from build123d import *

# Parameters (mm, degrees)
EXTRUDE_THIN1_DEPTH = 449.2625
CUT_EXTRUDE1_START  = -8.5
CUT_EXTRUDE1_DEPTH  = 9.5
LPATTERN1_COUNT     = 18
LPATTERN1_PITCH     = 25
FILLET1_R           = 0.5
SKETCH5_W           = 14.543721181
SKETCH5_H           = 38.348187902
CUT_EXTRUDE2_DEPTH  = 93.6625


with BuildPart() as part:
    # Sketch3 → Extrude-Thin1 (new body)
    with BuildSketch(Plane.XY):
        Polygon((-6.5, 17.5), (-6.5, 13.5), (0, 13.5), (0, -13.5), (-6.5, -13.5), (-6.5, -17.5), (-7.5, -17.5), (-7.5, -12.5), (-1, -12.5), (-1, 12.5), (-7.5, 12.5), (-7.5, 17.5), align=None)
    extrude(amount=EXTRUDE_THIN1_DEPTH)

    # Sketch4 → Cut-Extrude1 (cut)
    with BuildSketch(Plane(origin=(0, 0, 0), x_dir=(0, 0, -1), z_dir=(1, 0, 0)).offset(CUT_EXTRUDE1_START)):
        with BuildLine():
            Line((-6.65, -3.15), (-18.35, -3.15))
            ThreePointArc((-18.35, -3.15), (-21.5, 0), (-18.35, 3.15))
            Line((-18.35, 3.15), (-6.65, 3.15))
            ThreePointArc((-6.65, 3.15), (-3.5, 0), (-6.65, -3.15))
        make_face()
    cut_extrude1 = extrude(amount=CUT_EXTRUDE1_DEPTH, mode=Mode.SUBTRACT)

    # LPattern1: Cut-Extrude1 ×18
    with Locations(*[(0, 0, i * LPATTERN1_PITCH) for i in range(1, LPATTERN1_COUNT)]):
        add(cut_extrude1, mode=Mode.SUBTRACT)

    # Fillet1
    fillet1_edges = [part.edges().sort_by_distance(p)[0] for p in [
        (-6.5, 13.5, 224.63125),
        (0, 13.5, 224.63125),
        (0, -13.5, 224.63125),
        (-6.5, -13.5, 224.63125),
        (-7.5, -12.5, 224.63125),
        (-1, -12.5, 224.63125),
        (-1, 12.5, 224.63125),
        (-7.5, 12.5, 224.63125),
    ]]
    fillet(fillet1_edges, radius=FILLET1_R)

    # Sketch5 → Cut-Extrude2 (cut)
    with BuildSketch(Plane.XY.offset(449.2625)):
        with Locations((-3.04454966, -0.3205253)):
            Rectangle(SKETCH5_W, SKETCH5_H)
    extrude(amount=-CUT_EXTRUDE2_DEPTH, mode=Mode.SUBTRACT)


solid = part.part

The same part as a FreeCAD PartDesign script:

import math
import FreeCAD as App
import Part
import Sketcher

V = App.Vector


def edges_at(feature, points):
    """Names of the edges that pass closest to the given points."""
    edges = feature.Shape.Edges
    near = lambda p: min(range(len(edges)), key=lambda i: edges[i].distToShape(Part.Vertex(*p))[0])
    return sorted({f"Edge{near(p) + 1}" for p in points})

doc = App.newDocument("Part")
params = doc.addObject("Spreadsheet::Sheet", "Params")
for row, (alias, value) in enumerate([
    ("sketch1_width", "1 mm"),
    ("sketch1_height", "4 mm"),
    ("sketch1_height2", "5 mm"),
    ("sketch1_height3", "25 mm"),
    ("sketch1_width2", "6.5 mm"),
    ("pad1_length", "449.2625 mm"),
    ("sketch2_radius", "3.15 mm"),
    ("sketch2_height", "11.7 mm"),
    ("pocket1_length", "9.5 mm"),
    ("linearpattern_pitch", "25 mm"),
    ("fillet_radius", "0.5 mm"),
    ("pocket2_length", "93.6625 mm"),
], start=1):
    params.set(f"A{row}", alias)
    params.set(f"B{row}", "=" + value)
    params.setAlias(f"B{row}", alias)

body = doc.addObject("PartDesign::Body", "Body")

# Sketch on XY plane
sketch1 = body.newObject("Sketcher::SketchObject", "Sketch")
sketch1.AttachmentSupport = (doc.getObject("XY_Plane"), [""])
sketch1.MapMode = "FlatFace"
sketch1.addGeometry([
    Part.LineSegment(V(-6.5, 13.5, 0), V(-6.5, 17.5, 0)),  # 0
    Part.LineSegment(V(-6.5, 17.5, 0), V(-7.5, 17.5, 0)),  # 1
    Part.LineSegment(V(-7.5, 17.5, 0), V(-7.5, 12.5, 0)),  # 2
    Part.LineSegment(V(-7.5, 12.5, 0), V(-1, 12.5, 0)),  # 3
    Part.LineSegment(V(-1, 12.5, 0), V(-1, -12.5, 0)),  # 4
    Part.LineSegment(V(-1, -12.5, 0), V(-7.5, -12.5, 0)),  # 5
    Part.LineSegment(V(-7.5, -12.5, 0), V(-7.5, -17.5, 0)),  # 6
    Part.LineSegment(V(-7.5, -17.5, 0), V(-6.5, -17.5, 0)),  # 7
    Part.LineSegment(V(-6.5, -17.5, 0), V(-6.5, -13.5, 0)),  # 8
    Part.LineSegment(V(-6.5, -13.5, 0), V(0, -13.5, 0)),  # 9
    Part.LineSegment(V(0, -13.5, 0), V(0, 13.5, 0)),  # 10
    Part.LineSegment(V(0, 13.5, 0), V(-6.5, 13.5, 0)),  # 11
], False)
sketch1.addConstraint([
    Sketcher.Constraint("Coincident", 0, 2, 1, 1),
    Sketcher.Constraint("Coincident", 1, 2, 2, 1),
    Sketcher.Constraint("Coincident", 2, 2, 3, 1),
    Sketcher.Constraint("Coincident", 3, 2, 4, 1),
    Sketcher.Constraint("Coincident", 4, 2, 5, 1),
    Sketcher.Constraint("Coincident", 5, 2, 6, 1),
    Sketcher.Constraint("Coincident", 6, 2, 7, 1),
    Sketcher.Constraint("Coincident", 7, 2, 8, 1),
    Sketcher.Constraint("Coincident", 8, 2, 9, 1),
    Sketcher.Constraint("Coincident", 9, 2, 10, 1),
    Sketcher.Constraint("Coincident", 10, 2, 11, 1),
    Sketcher.Constraint("Coincident", 11, 2, 0, 1),
    Sketcher.Constraint("Vertical", 0),
    Sketcher.Constraint("Horizontal", 1),
    Sketcher.Constraint("Vertical", 2),
    Sketcher.Constraint("Horizontal", 3),
    Sketcher.Constraint("Vertical", 4),
    Sketcher.Constraint("Horizontal", 5),
    Sketcher.Constraint("Vertical", 6),
    Sketcher.Constraint("Horizontal", 7),
    Sketcher.Constraint("Vertical", 8),
    Sketcher.Constraint("Horizontal", 9),
    Sketcher.Constraint("Vertical", 10),
    Sketcher.Constraint("Horizontal", 11),
    Sketcher.Constraint("Symmetric", 9, 2, 10, 2, -1, 1),
    Sketcher.Constraint("Symmetric", 2, 2, 5, 2, -1),
    Sketcher.Constraint("Symmetric", 0, 2, 7, 2, -1),
    Sketcher.Constraint("Equal", 5, 9),
    Sketcher.Constraint("DistanceX", 1, 2, 1, 1, 1.0),
    Sketcher.Constraint("DistanceY", 0, 1, 0, 2, 4.0),
    Sketcher.Constraint("DistanceY", 2, 2, 2, 1, 5.0),
    Sketcher.Constraint("DistanceY", 4, 2, 4, 1, 25.0),
    Sketcher.Constraint("DistanceX", 3, 1, 3, 2, 6.5),
])
sketch1.setExpression("Constraints[28]", "Params.sketch1_width")
sketch1.setExpression("Constraints[29]", "Params.sketch1_height")
sketch1.setExpression("Constraints[30]", "Params.sketch1_height2")
sketch1.setExpression("Constraints[31]", "Params.sketch1_height3")
sketch1.setExpression("Constraints[32]", "Params.sketch1_width2")
pad1 = body.newObject("PartDesign::Pad", "Pad")
pad1.Profile = sketch1
pad1.setExpression("Length", "Params.pad1_length")

# Sketch on YZ plane
sketch2 = body.newObject("Sketcher::SketchObject", "Sketch001")
sketch2.AttachmentSupport = (doc.getObject("YZ_Plane"), [""])
sketch2.MapMode = "FlatFace"
sketch2.AttachmentOffset = App.Placement(V(0, 0, -8.5), App.Rotation())
sketch2.addGeometry([
    Part.LineSegment(V(-3.1, 18.4, 0), V(-3.1, 6.7, 0)),
    Part.ArcOfCircle(Part.Circle(V(0, 6.7, 0), V(0, 0, 1), 3.1), math.radians(180), math.radians(360)),
    Part.LineSegment(V(3.1, 6.7, 0), V(3.1, 18.4, 0)),
    Part.ArcOfCircle(Part.Circle(V(0, 18.4, 0), V(0, 0, 1), 3.1), math.radians(0), math.radians(180)),
], False)
sketch2.addConstraint([
    Sketcher.Constraint("Tangent", 0, 2, 1, 1),
    Sketcher.Constraint("Tangent", 1, 2, 2, 1),
    Sketcher.Constraint("Tangent", 2, 2, 3, 1),
    Sketcher.Constraint("Tangent", 3, 2, 0, 1),
    Sketcher.Constraint("Vertical", 0),
    Sketcher.Constraint("Vertical", 2),
    Sketcher.Constraint("PointOnObject", 1, 3, -2),
    Sketcher.Constraint("Radius", 1, 3.15),
    Sketcher.Constraint("DistanceY", 0, 2, 0, 1, 11.7),
    Sketcher.Constraint("DistanceY", -1, 1, 1, 3, 6.65),
])
sketch2.setExpression("Constraints[7]", "Params.sketch2_radius")
sketch2.setExpression("Constraints[8]", "Params.sketch2_height")
pocket1 = body.newObject("PartDesign::Pocket", "Pocket")
pocket1.Profile = sketch2
pocket1.setExpression("Length", "Params.pocket1_length")
pocket1.Reversed = True
doc.recompute()

linearpattern = body.newObject("PartDesign::LinearPattern", "LinearPattern")
linearpattern.Originals = [pocket1]
linearpattern.Direction = (doc.getObject("Z_Axis"), [""])
linearpattern.Mode = "offset"
linearpattern.setExpression("Offset", "Params.linearpattern_pitch")
linearpattern.Occurrences = 18
body.Tip = linearpattern
doc.recompute()

fillet = body.newObject("PartDesign::Fillet", "Fillet")
fillet.Base = (linearpattern, edges_at(linearpattern, [
    (-6.5, 13.5, 224.631),
    (0, 13.5, 224.631),
    (0, -13.5, 224.631),
    (-6.5, -13.5, 224.631),
    (-7.5, -12.5, 224.631),
    (-1, -12.5, 224.631),
    (-1, 12.5, 224.631),
    (-7.5, 12.5, 224.631),
]))
fillet.setExpression("Radius", "Params.fillet_radius")

# Sketch on XY plane
sketch3 = body.newObject("Sketcher::SketchObject", "Sketch002")
sketch3.AttachmentSupport = (doc.getObject("XY_Plane"), [""])
sketch3.MapMode = "FlatFace"
sketch3.AttachmentOffset = App.Placement(V(0, 0, 449.2625), App.Rotation())
sketch3.addGeometry([
    Part.LineSegment(V(-10, 19, 0), V(-10, -19, 0)),
    Part.LineSegment(V(-10, -19, 0), V(4, -19, 0)),
    Part.LineSegment(V(4, -19, 0), V(4, 19, 0)),
    Part.LineSegment(V(4, 19, 0), V(-10, 19, 0)),
], False)
sketch3.addConstraint([
    Sketcher.Constraint("Coincident", 0, 2, 1, 1),
    Sketcher.Constraint("Coincident", 1, 2, 2, 1),
    Sketcher.Constraint("Coincident", 2, 2, 3, 1),
    Sketcher.Constraint("Coincident", 3, 2, 0, 1),
    Sketcher.Constraint("Vertical", 0),
    Sketcher.Constraint("Horizontal", 1),
    Sketcher.Constraint("Vertical", 2),
    Sketcher.Constraint("Horizontal", 3),
    Sketcher.Constraint("DistanceX", 1, 1, 1, 2, 14.543721),
    Sketcher.Constraint("DistanceY", 0, 2, 0, 1, 38.348188),
    Sketcher.Constraint("DistanceX", 0, 2, -1, 1, 10.31641),
    Sketcher.Constraint("DistanceY", 0, 2, -1, 1, 19.494619),
])
pocket2 = body.newObject("PartDesign::Pocket", "Pocket001")
pocket2.Profile = sketch3
pocket2.setExpression("Length", "Params.pocket2_length")

doc.recompute()
